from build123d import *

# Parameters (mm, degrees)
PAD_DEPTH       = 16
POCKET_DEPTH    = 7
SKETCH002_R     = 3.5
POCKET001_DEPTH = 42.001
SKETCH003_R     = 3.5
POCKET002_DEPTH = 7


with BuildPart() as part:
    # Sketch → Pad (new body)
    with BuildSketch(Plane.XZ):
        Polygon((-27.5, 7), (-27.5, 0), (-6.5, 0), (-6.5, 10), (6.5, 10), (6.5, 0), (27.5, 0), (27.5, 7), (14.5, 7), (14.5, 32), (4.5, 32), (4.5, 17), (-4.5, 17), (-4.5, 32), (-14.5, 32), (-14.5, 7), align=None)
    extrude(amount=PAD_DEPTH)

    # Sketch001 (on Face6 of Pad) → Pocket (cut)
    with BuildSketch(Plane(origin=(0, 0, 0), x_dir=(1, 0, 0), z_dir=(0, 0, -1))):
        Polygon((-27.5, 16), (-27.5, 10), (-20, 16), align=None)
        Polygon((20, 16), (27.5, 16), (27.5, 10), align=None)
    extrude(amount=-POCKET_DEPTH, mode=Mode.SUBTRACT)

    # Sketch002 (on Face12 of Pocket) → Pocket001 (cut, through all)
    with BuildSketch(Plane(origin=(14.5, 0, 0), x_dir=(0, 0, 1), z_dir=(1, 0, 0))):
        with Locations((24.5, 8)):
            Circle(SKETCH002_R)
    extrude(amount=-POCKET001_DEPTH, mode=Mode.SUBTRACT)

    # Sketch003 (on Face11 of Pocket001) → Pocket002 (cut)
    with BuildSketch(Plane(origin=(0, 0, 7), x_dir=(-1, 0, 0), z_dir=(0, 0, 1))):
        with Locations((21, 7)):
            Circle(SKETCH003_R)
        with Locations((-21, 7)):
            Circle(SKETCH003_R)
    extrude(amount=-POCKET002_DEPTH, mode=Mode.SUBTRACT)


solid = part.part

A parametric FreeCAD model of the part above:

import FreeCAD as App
import Part
import Sketcher

V = App.Vector
Q = App.Units.Quantity


def add_polygon(sketch, points):
    """Adds a closed chain of lines whose ends are joined by coincident constraints."""
    first, n = sketch.GeometryCount, len(points)
    for a, b in zip(points, points[1:] + points[:1]):
        sketch.addGeometry(Part.LineSegment(App.Vector(*a, 0), App.Vector(*b, 0)), False)
    for i in range(n):
        sketch.addConstraint(Sketcher.Constraint("Coincident", first + i, 2, first + (i + 1) % n, 1))

doc = App.newDocument("Part")
body = doc.addObject("PartDesign::Body", "Body")

# Sketch on XZ plane
sketch1 = body.newObject("Sketcher::SketchObject", "Sketch")
sketch1.AttachmentSupport = (doc.getObject("XZ_Plane"), [""])
sketch1.MapMode = "FlatFace"
add_polygon(sketch1, [(-28, 7), (-28, 0), (-6, 0), (-6, 10), (6, 10), (6, 0), (28, 0), (28, 7), (14, 7), (14, 32), (4, 32), (4, 17), (-4, 17), (-4, 32), (-14, 32), (-14, 7)])  # lines 0-15
sketch1.addConstraint([
    Sketcher.Constraint("Vertical", 0),
    Sketcher.Constraint("Horizontal", 1),
    Sketcher.Constraint("Vertical", 2),
    Sketcher.Constraint("Horizontal", 3),
    Sketcher.Constraint("Vertical", 4),
    Sketcher.Constraint("Horizontal", 5),
    Sketcher.Constraint("Vertical", 6),
    Sketcher.Constraint("Horizontal", 7),
    Sketcher.Constraint("Vertical", 8),
    Sketcher.Constraint("Horizontal", 9),
    Sketcher.Constraint("Vertical", 10),
    Sketcher.Constraint("Horizontal", 11),
    Sketcher.Constraint("Vertical", 12),
    Sketcher.Constraint("Horizontal", 13),
    Sketcher.Constraint("Vertical", 14),
    Sketcher.Constraint("Horizontal", 15),
    Sketcher.Constraint("Symmetric", 1, 2, 4, 2, -1, 1),
    Sketcher.Constraint("Symmetric", 0, 2, 5, 2, -2),
    Sketcher.Constraint("Symmetric", 9, 2, 12, 2, -2),
    Sketcher.Constraint("Symmetric", 7, 2, 14, 2, -2),
    Sketcher.Constraint("Equal", 3, 7),
    Sketcher.Constraint("Equal", 13, 2),
    Sketcher.Constraint("DistanceX", 1, 1, 1, 2, Q("21 mm")),
    Sketcher.Constraint("DistanceX", 3, 1, 3, 2, Q("13 mm")),
    Sketcher.Constraint("DistanceX", 9, 2, 9, 1, Q("10 mm")),
    Sketcher.Constraint("DistanceY", 0, 2, 0, 1, Q("7 mm")),
    Sketcher.Constraint("DistanceY", 8, 1, 8, 2, Q("25 mm")),
    Sketcher.Constraint("DistanceY", 10, 2, 10, 1, Q("15 mm")),
])
pad1 = body.newObject("PartDesign::Pad", "Pad")
pad1.Profile = sketch1
pad1.Length = 16

# Sketch on XY plane
sketch2 = body.newObject("Sketcher::SketchObject", "Sketch001")
sketch2.AttachmentSupport = (doc.getObject("XY_Plane"), [""])
sketch2.MapMode = "FlatFace"
add_polygon(sketch2, [(-28, -16), (-28, -10), (-20, -16)])  # lines 0-2
add_polygon(sketch2, [(28, -16), (20, -16), (28, -10)])  # lines 3-5
sketch2.addConstraint([
    Sketcher.Constraint("Vertical", 0),
    Sketcher.Constraint("Horizontal", 2),
    Sketcher.Constraint("Horizontal", 3),
    Sketcher.Constraint("Vertical", 5),
    Sketcher.Constraint("Symmetric", 1, 2, 3, 2, -2),
    Sketcher.Constraint("Symmetric", 0, 2, 4, 2, -2),
    Sketcher.Constraint("DistanceY", 0, 1, 0, 2, Q("6 mm")),
    Sketcher.Constraint("DistanceX", 2, 2, 2, 1, Q("7.5 mm")),
    Sketcher.Constraint("DistanceY", 0, 2, -1, 1, Q("10 mm")),
    Sketcher.Constraint("DistanceX", 1, 2, -1, 1, Q("20 mm")),
])
pocket1 = body.newObject("PartDesign::Pocket", "Pocket")
pocket1.Profile = sketch2
pocket1.Length = 7
pocket1.Reversed = True

# Sketch on YZ plane
sketch3 = body.newObject("Sketcher::SketchObject", "Sketch002")
sketch3.AttachmentSupport = (doc.getObject("YZ_Plane"), [""])
sketch3.MapMode = "FlatFace"
sketch3.AttachmentOffset = App.Placement(V(0, 0, 14.5), App.Rotation())
sketch3.addGeometry(Part.Circle(V(-8, 24.5, 0), V(0, 0, 1), 3.5), False)
sketch3.addConstraint([
    Sketcher.Constraint("Diameter", 0, Q("7 mm")),
    Sketcher.Constraint("DistanceX", 0, 3, -1, 1, Q("8 mm")),
    Sketcher.Constraint("DistanceY", -1, 1, 0, 3, Q("24.5 mm")),
])
pocket2 = body.newObject("PartDesign::Pocket", "Pocket001")
pocket2.Profile = sketch3
pocket2.Type = "ThroughAll"

# Sketch on XY plane
sketch4 = body.newObject("Sketcher::SketchObject", "Sketch003")
sketch4.AttachmentSupport = (doc.getObject("XY_Plane"), [""])
sketch4.MapMode = "FlatFace"
sketch4.AttachmentOffset = App.Placement(V(0, 0, 7), App.Rotation())
sketch4.addGeometry([
    Part.Circle(V(-21, -7, 0), V(0, 0, 1), 3.5),
    Part.Circle(V(21, -7, 0), V(0, 0, 1), 3.5),
], False)
sketch4.addConstraint([
    Sketcher.Constraint("Equal", 0, 1),
    Sketcher.Constraint("Symmetric", 0, 3, 1, 3, -2),
    Sketcher.Constraint("Diameter", 0, Q("7 mm")),
    Sketcher.Constraint("DistanceX", 0, 3, -1, 1, Q("21 mm")),
    Sketcher.Constraint("DistanceY", 0, 3, -1, 1, Q("7 mm")),
])
pocket3 = body.newObject("PartDesign::Pocket", "Pocket002")
pocket3.Profile = sketch4
pocket3.Length = 7

doc.recompute()
